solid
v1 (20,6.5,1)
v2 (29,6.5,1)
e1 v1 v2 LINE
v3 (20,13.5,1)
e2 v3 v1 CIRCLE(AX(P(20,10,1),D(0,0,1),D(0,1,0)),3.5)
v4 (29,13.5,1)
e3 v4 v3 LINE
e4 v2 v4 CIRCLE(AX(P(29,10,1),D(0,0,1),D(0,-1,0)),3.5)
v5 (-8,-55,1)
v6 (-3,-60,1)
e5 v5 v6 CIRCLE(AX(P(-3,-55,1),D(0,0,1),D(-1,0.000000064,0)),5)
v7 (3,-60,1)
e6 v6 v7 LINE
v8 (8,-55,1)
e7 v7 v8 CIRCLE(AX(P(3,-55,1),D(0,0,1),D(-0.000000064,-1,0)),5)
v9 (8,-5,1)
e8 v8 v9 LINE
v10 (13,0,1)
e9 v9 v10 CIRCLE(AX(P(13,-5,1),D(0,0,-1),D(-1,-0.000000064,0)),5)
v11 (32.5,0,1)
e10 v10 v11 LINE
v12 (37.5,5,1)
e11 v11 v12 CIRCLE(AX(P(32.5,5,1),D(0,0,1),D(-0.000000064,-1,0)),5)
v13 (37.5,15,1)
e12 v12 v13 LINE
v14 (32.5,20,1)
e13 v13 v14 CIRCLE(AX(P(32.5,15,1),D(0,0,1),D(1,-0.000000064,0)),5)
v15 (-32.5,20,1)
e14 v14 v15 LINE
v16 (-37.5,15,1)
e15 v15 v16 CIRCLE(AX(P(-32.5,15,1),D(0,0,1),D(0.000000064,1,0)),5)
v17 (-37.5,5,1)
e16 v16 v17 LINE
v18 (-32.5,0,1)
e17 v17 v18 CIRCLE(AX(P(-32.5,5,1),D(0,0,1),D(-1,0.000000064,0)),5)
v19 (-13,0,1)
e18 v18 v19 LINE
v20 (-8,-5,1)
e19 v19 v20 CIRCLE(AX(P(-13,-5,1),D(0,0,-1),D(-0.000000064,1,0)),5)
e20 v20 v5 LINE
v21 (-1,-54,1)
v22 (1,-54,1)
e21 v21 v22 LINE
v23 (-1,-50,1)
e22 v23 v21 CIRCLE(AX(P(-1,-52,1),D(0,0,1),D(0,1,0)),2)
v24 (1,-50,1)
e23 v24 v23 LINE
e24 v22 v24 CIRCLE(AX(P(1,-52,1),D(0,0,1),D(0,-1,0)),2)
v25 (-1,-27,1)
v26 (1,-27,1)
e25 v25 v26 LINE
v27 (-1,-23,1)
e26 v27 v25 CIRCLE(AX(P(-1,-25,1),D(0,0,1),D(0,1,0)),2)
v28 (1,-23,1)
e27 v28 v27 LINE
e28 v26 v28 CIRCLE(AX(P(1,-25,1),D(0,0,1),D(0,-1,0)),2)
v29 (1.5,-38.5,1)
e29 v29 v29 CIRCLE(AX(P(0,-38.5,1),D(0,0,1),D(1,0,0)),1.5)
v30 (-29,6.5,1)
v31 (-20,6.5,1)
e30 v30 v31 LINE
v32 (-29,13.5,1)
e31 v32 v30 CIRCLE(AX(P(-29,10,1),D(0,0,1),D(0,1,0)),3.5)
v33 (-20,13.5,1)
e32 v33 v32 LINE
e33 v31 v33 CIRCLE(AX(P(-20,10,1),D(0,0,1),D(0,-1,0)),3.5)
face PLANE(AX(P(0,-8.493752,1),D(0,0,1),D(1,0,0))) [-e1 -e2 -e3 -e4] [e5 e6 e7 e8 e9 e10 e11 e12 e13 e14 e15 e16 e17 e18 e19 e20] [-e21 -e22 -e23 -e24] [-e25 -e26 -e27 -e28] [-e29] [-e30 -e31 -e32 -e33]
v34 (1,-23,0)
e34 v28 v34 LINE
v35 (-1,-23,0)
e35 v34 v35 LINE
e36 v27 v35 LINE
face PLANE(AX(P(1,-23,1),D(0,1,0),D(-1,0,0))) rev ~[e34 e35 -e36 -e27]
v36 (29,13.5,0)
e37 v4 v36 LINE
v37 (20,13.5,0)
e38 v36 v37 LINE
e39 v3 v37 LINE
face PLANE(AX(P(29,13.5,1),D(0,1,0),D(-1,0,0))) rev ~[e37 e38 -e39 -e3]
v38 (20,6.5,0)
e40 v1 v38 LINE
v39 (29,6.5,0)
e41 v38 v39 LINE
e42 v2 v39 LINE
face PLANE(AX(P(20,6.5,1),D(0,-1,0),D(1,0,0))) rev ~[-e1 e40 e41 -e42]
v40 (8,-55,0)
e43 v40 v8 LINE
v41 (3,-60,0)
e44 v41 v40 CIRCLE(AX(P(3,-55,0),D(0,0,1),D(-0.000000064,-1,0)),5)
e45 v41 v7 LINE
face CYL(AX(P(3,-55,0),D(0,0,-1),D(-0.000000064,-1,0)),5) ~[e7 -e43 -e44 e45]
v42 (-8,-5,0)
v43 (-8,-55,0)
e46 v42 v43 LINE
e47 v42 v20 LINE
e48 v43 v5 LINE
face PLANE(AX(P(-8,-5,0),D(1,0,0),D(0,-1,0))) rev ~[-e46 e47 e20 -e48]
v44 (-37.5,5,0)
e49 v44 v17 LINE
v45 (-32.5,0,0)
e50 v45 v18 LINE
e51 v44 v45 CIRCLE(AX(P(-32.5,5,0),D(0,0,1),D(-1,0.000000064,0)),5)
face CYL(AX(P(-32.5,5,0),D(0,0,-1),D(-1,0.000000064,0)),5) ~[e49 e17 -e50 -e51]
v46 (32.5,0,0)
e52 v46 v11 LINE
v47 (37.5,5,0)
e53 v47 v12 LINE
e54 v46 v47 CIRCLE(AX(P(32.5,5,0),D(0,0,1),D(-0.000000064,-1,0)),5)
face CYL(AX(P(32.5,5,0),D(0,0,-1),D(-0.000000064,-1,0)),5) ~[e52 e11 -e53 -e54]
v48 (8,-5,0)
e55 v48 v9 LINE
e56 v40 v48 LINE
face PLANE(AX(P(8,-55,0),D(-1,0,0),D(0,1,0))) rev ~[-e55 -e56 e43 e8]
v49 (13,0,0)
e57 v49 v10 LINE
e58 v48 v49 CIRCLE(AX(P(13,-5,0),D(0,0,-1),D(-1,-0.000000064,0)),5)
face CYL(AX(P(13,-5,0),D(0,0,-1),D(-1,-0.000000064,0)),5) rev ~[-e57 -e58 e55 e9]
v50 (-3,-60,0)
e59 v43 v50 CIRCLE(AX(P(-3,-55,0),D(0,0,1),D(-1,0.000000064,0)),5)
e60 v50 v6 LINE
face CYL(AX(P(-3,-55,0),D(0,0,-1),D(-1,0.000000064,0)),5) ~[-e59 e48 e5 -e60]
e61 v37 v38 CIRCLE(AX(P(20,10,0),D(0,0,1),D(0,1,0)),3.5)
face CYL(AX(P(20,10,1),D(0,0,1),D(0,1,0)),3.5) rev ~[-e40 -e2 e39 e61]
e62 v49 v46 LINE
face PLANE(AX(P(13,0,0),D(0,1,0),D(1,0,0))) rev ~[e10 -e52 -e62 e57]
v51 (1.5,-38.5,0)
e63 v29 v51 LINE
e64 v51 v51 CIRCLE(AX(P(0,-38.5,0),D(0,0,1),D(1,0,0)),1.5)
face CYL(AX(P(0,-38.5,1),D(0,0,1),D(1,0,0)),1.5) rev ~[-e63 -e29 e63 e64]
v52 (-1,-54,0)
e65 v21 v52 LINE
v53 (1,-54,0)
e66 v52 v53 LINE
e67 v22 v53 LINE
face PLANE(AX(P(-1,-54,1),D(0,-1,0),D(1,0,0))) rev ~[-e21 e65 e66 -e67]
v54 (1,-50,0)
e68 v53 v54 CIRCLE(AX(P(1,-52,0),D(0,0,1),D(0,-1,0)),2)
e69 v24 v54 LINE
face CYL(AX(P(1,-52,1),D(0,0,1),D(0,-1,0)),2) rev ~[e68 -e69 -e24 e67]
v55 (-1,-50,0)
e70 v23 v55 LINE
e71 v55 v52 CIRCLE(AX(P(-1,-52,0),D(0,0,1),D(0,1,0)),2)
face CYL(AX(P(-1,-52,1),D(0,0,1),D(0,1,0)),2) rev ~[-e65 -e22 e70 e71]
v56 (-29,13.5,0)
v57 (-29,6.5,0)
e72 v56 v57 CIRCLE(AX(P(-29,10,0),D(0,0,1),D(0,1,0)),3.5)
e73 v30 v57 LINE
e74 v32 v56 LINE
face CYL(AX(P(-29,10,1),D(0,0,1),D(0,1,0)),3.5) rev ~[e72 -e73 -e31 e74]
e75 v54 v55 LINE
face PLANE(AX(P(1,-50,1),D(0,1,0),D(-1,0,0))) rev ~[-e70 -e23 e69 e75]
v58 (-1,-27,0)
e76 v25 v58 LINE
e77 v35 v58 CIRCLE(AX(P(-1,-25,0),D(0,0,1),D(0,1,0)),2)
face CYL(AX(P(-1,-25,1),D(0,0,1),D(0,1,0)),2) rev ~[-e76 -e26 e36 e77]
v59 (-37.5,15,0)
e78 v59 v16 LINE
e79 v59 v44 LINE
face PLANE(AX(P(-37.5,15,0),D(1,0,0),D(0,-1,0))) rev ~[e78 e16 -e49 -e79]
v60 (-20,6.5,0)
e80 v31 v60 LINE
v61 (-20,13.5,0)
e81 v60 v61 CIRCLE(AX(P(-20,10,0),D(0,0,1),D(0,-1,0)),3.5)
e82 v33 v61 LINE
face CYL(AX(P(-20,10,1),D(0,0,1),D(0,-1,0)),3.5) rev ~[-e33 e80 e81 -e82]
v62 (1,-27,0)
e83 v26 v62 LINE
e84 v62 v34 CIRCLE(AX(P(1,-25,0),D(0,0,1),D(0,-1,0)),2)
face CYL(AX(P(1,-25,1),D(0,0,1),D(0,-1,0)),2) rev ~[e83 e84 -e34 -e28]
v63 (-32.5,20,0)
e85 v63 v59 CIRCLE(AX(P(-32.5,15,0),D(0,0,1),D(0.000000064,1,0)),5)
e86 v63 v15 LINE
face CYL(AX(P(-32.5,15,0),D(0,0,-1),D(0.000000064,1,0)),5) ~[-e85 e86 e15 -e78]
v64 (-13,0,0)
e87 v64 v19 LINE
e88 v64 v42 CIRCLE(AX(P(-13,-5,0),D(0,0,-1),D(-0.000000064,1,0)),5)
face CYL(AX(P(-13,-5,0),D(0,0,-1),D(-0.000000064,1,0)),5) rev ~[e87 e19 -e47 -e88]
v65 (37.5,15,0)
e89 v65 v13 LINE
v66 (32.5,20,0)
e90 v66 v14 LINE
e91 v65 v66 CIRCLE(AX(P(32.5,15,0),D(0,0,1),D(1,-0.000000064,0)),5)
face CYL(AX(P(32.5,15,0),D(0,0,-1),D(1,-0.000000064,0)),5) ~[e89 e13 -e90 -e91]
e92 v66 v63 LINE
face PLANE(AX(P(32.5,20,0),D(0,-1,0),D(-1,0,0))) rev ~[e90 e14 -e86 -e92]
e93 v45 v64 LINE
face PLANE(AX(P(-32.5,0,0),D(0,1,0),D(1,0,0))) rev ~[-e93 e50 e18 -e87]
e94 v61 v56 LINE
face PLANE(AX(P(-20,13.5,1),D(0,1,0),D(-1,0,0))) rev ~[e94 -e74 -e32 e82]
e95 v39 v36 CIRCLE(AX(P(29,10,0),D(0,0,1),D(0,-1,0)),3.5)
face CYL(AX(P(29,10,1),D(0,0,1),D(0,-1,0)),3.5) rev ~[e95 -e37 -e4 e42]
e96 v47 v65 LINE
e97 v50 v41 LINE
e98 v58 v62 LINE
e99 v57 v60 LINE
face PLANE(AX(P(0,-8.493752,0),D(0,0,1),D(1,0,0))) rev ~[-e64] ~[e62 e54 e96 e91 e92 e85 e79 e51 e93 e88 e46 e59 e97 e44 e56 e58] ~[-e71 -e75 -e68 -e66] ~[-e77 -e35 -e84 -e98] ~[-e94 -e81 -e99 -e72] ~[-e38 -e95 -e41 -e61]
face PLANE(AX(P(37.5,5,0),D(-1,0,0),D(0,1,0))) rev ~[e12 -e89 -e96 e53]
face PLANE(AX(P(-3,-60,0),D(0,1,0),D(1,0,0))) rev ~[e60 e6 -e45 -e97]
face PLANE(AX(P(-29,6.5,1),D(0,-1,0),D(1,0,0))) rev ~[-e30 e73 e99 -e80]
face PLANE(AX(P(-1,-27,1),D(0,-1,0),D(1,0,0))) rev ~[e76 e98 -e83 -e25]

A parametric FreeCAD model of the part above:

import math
import FreeCAD as App
import Part
import Sketcher
Q = App.Units.Quantity

doc = App.newDocument("Part")
body = doc.addObject("PartDesign::Body", "Body")

# Sketch on XY plane
sketch1 = doc.addObject("Sketcher::SketchObject", "Sketch")
body.addObject(sketch1)
sketch1.AttachmentSupport = (doc.XY_Plane, [""])
sketch1.MapMode = "FlatFace"
sketch1.addGeometry(Part.LineSegment(App.Vector(32.5, 20, 0), App.Vector(-32.5, 20, 0)), False)
sketch1.addGeometry(Part.ArcOfCircle(Part.Circle(App.Vector(-32.5, 15, 0), App.Vector(0, 0, 1), 5), math.radians(90), math.radians(180)), False)
sketch1.addGeometry(Part.LineSegment(App.Vector(-37.5, 15, 0), App.Vector(-37.5, 5, 0)), False)
sketch1.addGeometry(Part.ArcOfCircle(Part.Circle(App.Vector(-32.5, 5, 0), App.Vector(0, 0, 1), 5), math.radians(180), math.radians(270)), False)
sketch1.addGeometry(Part.LineSegment(App.Vector(-32.5, 0, 0), App.Vector(-13, 0, 0)), False)
sketch1.addGeometry(Part.ArcOfCircle(Part.Circle(App.Vector(-13, -5, 0), App.Vector(0, 0, 1), 5), math.radians(0), math.radians(90)), False)
sketch1.addGeometry(Part.LineSegment(App.Vector(-8, -5, 0), App.Vector(-8, -55, 0)), False)
sketch1.addGeometry(Part.ArcOfCircle(Part.Circle(App.Vector(-3, -55, 0), App.Vector(0, 0, 1), 5), math.radians(180), math.radians(270)), False)
sketch1.addGeometry(Part.LineSegment(App.Vector(-3, -60, 0), App.Vector(3, -60, 0)), False)
sketch1.addGeometry(Part.ArcOfCircle(Part.Circle(App.Vector(3, -55, 0), App.Vector(0, 0, 1), 5), math.radians(-90), math.radians(0)), False)
sketch1.addGeometry(Part.LineSegment(App.Vector(8, -55, 0), App.Vector(8, -5, 0)), False)
sketch1.addGeometry(Part.ArcOfCircle(Part.Circle(App.Vector(13, -5, 0), App.Vector(0, 0, 1), 5), math.radians(90), math.radians(180)), False)
sketch1.addGeometry(Part.LineSegment(App.Vector(13, 0, 0), App.Vector(32.5, 0, 0)), False)
sketch1.addGeometry(Part.ArcOfCircle(Part.Circle(App.Vector(32.5, 5, 0), App.Vector(0, 0, 1), 5), math.radians(-90), math.radians(0)), False)
sketch1.addGeometry(Part.LineSegment(App.Vector(37.5, 5, 0), App.Vector(37.5, 15, 0)), False)
sketch1.addGeometry(Part.ArcOfCircle(Part.Circle(App.Vector(32.5, 15, 0), App.Vector(0, 0, 1), 5), math.radians(0), math.radians(90)), False)
sketch1.addConstraint(Sketcher.Constraint("Tangent", 0, 2, 1, 1))
sketch1.addConstraint(Sketcher.Constraint("Tangent", 1, 2, 2, 1))
sketch1.addConstraint(Sketcher.Constraint("Tangent", 2, 2, 3, 1))
sketch1.addConstraint(Sketcher.Constraint("Tangent", 3, 2, 4, 1))
sketch1.addConstraint(Sketcher.Constraint("Tangent", 4, 2, 5, 2))
sketch1.addConstraint(Sketcher.Constraint("Tangent", 5, 1, 6, 1))
sketch1.addConstraint(Sketcher.Constraint("Tangent", 6, 2, 7, 1))
sketch1.addConstraint(Sketcher.Constraint("Tangent", 7, 2, 8, 1))
sketch1.addConstraint(Sketcher.Constraint("Tangent", 8, 2, 9, 1))
sketch1.addConstraint(Sketcher.Constraint("Tangent", 9, 2, 10, 1))
sketch1.addConstraint(Sketcher.Constraint("Tangent", 10, 2, 11, 2))
sketch1.addConstraint(Sketcher.Constraint("Tangent", 11, 1, 12, 1))
sketch1.addConstraint(Sketcher.Constraint("Tangent", 12, 2, 13, 1))
sketch1.addConstraint(Sketcher.Constraint("Tangent", 13, 2, 14, 1))
sketch1.addConstraint(Sketcher.Constraint("Tangent", 14, 2, 15, 1))
sketch1.addConstraint(Sketcher.Constraint("Tangent", 15, 2, 0, 1))
sketch1.addConstraint(Sketcher.Constraint("Horizontal", 0))
sketch1.addConstraint(Sketcher.Constraint("Vertical", 2))
sketch1.addConstraint(Sketcher.Constraint("Horizontal", 4))
sketch1.addConstraint(Sketcher.Constraint("Vertical", 6))
sketch1.addConstraint(Sketcher.Constraint("Horizontal", 8))
sketch1.addConstraint(Sketcher.Constraint("Vertical", 10))
sketch1.addConstraint(Sketcher.Constraint("Horizontal", 12))
sketch1.addConstraint(Sketcher.Constraint("Vertical", 14))
sketch1.addConstraint(Sketcher.Constraint("Equal", 1, 3))
sketch1.addConstraint(Sketcher.Constraint("Equal", 3, 5))
sketch1.addConstraint(Sketcher.Constraint("Equal", 5, 7))
sketch1.addConstraint(Sketcher.Constraint("Equal", 7, 9))
sketch1.addConstraint(Sketcher.Constraint("Equal", 9, 11))
sketch1.addConstraint(Sketcher.Constraint("Equal", 11, 13))
sketch1.addConstraint(Sketcher.Constraint("Equal", 13, 15))
sketch1.addConstraint(Sketcher.Constraint("Symmetric", 4, 2, 11, 1, -1, 1))
sketch1.addConstraint(Sketcher.Constraint("Symmetric", 3, 3, 13, 3, -2))
sketch1.addConstraint(Sketcher.Constraint("Radius", 1, Q("5 mm")))
sketch1.addConstraint(Sketcher.Constraint("DistanceX", 0, 2, 0, 1, Q("65 mm")))
sketch1.addConstraint(Sketcher.Constraint("DistanceX", 8, 1, 8, 2, Q("6 mm")))
sketch1.addConstraint(Sketcher.Constraint("DistanceY", 2, 2, 2, 1, Q("10 mm")))
sketch1.addConstraint(Sketcher.Constraint("DistanceY", 6, 2, 6, 1, Q("50 mm")))
pad1 = doc.addObject("PartDesign::Pad", "Pad")
body.addObject(pad1)
pad1.Profile = sketch1
pad1.Length = 1

# Sketch on XY plane
sketch2 = doc.addObject("Sketcher::SketchObject", "Sketch001")
body.addObject(sketch2)
sketch2.AttachmentSupport = (doc.XY_Plane, [""])
sketch2.MapMode = "FlatFace"
sketch2.AttachmentOffset = App.Placement(App.Vector(0, 0, 1), App.Rotation())
sketch2.addGeometry(Part.LineSegment(App.Vector(1, -50, 0), App.Vector(-1, -50, 0)), False)
sketch2.addGeometry(Part.ArcOfCircle(Part.Circle(App.Vector(-1, -52, 0), App.Vector(0, 0, 1), 2), math.radians(90), math.radians(270)), False)
sketch2.addGeometry(Part.LineSegment(App.Vector(-1, -54, 0), App.Vector(1, -54, 0)), False)
sketch2.addGeometry(Part.ArcOfCircle(Part.Circle(App.Vector(1, -52, 0), App.Vector(0, 0, 1), 2), math.radians(-90), math.radians(90)), False)
sketch2.addGeometry(Part.LineSegment(App.Vector(1, -23, 0), App.Vector(-1, -23, 0)), False)
sketch2.addGeometry(Part.ArcOfCircle(Part.Circle(App.Vector(-1, -25, 0), App.Vector(0, 0, 1), 2), math.radians(90), math.radians(270)), False)
sketch2.addGeometry(Part.LineSegment(App.Vector(-1, -27, 0), App.Vector(1, -27, 0)), False)
sketch2.addGeometry(Part.ArcOfCircle(Part.Circle(App.Vector(1, -25, 0), App.Vector(0, 0, 1), 2), math.radians(-90), math.radians(90)), False)
sketch2.addGeometry(Part.LineSegment(App.Vector(29, 13.5, 0), App.Vector(20, 13.5, 0)), False)
sketch2.addGeometry(Part.ArcOfCircle(Part.Circle(App.Vector(20, 10, 0), App.Vector(0, 0, 1), 3.5), math.radians(90), math.radians(270)), False)
sketch2.addGeometry(Part.LineSegment(App.Vector(20, 6.5, 0), App.Vector(29, 6.5, 0)), False)
sketch2.addGeometry(Part.ArcOfCircle(Part.Circle(App.Vector(29, 10, 0), App.Vector(0, 0, 1), 3.5), math.radians(-90), math.radians(90)), False)
sketch2.addGeometry(Part.LineSegment(App.Vector(-20, 13.5, 0), App.Vector(-29, 13.5, 0)), False)
sketch2.addGeometry(Part.ArcOfCircle(Part.Circle(App.Vector(-29, 10, 0), App.Vector(0, 0, 1), 3.5), math.radians(90), math.radians(270)), False)
sketch2.addGeometry(Part.LineSegment(App.Vector(-29, 6.5, 0), App.Vector(-20, 6.5, 0)), False)
sketch2.addGeometry(Part.ArcOfCircle(Part.Circle(App.Vector(-20, 10, 0), App.Vector(0, 0, 1), 3.5), math.radians(-90), math.radians(90)), False)
sketch2.addGeometry(Part.Circle(App.Vector(0, -38.5, 0), App.Vector(0, 0, 1), 1.5), False)
sketch2.addConstraint(Sketcher.Constraint("Tangent", 0, 2, 1, 1))
sketch2.addConstraint(Sketcher.Constraint("Tangent", 1, 2, 2, 1))
sketch2.addConstraint(Sketcher.Constraint("Tangent", 2, 2, 3, 1))
sketch2.addConstraint(Sketcher.Constraint("Tangent", 3, 2, 0, 1))
sketch2.addConstraint(Sketcher.Constraint("Tangent", 4, 2, 5, 1))
sketch2.addConstraint(Sketcher.Constraint("Tangent", 5, 2, 6, 1))
sketch2.addConstraint(Sketcher.Constraint("Tangent", 6, 2, 7, 1))
sketch2.addConstraint(Sketcher.Constraint("Tangent", 7, 2, 4, 1))
sketch2.addConstraint(Sketcher.Constraint("Tangent", 8, 2, 9, 1))
sketch2.addConstraint(Sketcher.Constraint("Tangent", 9, 2, 10, 1))
sketch2.addConstraint(Sketcher.Constraint("Tangent", 10, 2, 11, 1))
sketch2.addConstraint(Sketcher.Constraint("Tangent", 11, 2, 8, 1))
sketch2.addConstraint(Sketcher.Constraint("Tangent", 12, 2, 13, 1))
sketch2.addConstraint(Sketcher.Constraint("Tangent", 13, 2, 14, 1))
sketch2.addConstraint(Sketcher.Constraint("Tangent", 14, 2, 15, 1))
sketch2.addConstraint(Sketcher.Constraint("Tangent", 15, 2, 12, 1))
sketch2.addConstraint(Sketcher.Constraint("Horizontal", 0))
sketch2.addConstraint(Sketcher.Constraint("Horizontal", 2))
sketch2.addConstraint(Sketcher.Constraint("Horizontal", 4))
sketch2.addConstraint(Sketcher.Constraint("Horizontal", 6))
sketch2.addConstraint(Sketcher.Constraint("Horizontal", 8))
sketch2.addConstraint(Sketcher.Constraint("Horizontal", 10))
sketch2.addConstraint(Sketcher.Constraint("Horizontal", 12))
sketch2.addConstraint(Sketcher.Constraint("Horizontal", 14))
sketch2.addConstraint(Sketcher.Constraint("Equal", 3, 5))
sketch2.addConstraint(Sketcher.Constraint("Equal", 11, 13))
sketch2.addConstraint(Sketcher.Constraint("Symmetric", 11, 3, 13, 3, -2))
sketch2.addConstraint(Sketcher.Constraint("PointOnObject", 16, 3, -2))
sketch2.addConstraint(Sketcher.Constraint("Vertical", 1, 3, 5, 3))
sketch2.addConstraint(Sketcher.Constraint("Vertical", 3, 3, 7, 3))
sketch2.addConstraint(Sketcher.Constraint("Equal", 10, 12))
sketch2.addConstraint(Sketcher.Constraint("Diameter", 16, Q("3 mm")))
sketch2.addConstraint(Sketcher.Constraint("Radius", 1, Q("2 mm")))
sketch2.addConstraint(Sketcher.Constraint("Radius", 9, Q("3.5 mm")))
sketch2.addConstraint(Sketcher.Constraint("DistanceX", 0, 2, 0, 1, Q("2 mm")))
sketch2.addConstraint(Sketcher.Constraint("DistanceX", 8, 2, 8, 1, Q("9 mm")))
sketch2.addConstraint(Sketcher.Constraint("DistanceX", 1, 3, -1, 1, Q("1 mm")))
sketch2.addConstraint(Sketcher.Constraint("DistanceY", 1, 3, -1, 1, Q("52 mm")))
sketch2.addConstraint(Sketcher.Constraint("DistanceY", 5, 3, -1, 1, Q("25 mm")))
sketch2.addConstraint(Sketcher.Constraint("DistanceX", -1, 1, 9, 3, Q("20 mm")))
sketch2.addConstraint(Sketcher.Constraint("DistanceY", -1, 1, 9, 3, Q("10 mm")))
sketch2.addConstraint(Sketcher.Constraint("DistanceY", 16, 3, -1, 1, Q("38.5 mm")))
pocket1 = doc.addObject("PartDesign::Pocket", "Pocket")
body.addObject(pocket1)
pocket1.Profile = sketch2
pocket1.Type = "ThroughAll"

doc.recompute()
